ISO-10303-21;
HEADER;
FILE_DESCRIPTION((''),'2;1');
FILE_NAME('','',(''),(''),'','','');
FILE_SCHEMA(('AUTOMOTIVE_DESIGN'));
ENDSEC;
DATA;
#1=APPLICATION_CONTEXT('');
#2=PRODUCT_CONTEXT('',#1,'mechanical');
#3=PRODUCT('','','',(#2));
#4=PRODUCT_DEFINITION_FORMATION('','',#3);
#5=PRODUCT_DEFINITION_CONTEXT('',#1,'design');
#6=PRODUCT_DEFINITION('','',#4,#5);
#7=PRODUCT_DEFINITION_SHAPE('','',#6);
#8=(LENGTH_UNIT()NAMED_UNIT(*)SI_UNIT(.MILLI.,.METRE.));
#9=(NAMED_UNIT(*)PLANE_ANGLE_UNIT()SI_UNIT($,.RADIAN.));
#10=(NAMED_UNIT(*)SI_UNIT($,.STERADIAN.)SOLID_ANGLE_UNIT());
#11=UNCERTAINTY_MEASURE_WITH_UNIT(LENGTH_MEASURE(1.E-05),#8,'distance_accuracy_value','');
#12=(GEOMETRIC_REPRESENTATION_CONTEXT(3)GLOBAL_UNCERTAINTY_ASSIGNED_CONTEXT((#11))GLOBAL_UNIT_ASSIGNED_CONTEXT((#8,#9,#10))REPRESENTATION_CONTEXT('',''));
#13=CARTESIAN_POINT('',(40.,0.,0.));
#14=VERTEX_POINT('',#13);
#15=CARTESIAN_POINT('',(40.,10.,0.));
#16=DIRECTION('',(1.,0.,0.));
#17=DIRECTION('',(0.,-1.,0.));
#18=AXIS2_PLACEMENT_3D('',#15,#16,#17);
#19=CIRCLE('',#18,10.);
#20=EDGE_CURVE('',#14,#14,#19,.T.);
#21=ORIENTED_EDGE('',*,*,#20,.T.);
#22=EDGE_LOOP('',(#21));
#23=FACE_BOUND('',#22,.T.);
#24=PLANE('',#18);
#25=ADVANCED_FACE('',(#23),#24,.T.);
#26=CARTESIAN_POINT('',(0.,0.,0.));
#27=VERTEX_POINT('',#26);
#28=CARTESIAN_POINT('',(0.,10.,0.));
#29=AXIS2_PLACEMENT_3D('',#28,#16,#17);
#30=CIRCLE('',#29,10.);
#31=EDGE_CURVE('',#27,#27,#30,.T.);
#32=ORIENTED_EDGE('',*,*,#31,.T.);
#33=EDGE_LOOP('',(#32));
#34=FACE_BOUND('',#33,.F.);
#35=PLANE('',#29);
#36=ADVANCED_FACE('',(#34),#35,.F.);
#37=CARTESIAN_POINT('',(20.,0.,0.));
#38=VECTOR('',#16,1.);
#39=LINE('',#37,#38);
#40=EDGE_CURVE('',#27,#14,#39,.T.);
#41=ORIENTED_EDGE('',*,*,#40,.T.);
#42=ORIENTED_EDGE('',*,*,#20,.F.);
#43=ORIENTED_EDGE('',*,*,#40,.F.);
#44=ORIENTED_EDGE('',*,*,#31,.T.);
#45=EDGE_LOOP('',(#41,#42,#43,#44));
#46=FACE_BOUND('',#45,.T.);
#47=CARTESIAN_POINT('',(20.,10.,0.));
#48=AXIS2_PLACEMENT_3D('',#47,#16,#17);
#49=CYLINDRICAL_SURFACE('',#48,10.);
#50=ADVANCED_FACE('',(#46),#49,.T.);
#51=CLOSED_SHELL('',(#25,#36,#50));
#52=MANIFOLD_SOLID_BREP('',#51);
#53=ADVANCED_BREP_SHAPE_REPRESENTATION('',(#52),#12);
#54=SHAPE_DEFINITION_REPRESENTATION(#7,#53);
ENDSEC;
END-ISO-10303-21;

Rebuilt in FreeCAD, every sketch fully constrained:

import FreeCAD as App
import Part
import Sketcher

V = App.Vector
Q = App.Units.Quantity

doc = App.newDocument("Part")
body = doc.addObject("PartDesign::Body", "Body")

# Sketch on XY plane
sketch1 = body.newObject("Sketcher::SketchObject", "Sketch")
sketch1.AttachmentSupport = (doc.getObject("XY_Plane"), [""])
sketch1.MapMode = "FlatFace"
sketch1.addGeometry([
    Part.LineSegment(V(0, 10, 0), V(0, 0, 0)),
    Part.LineSegment(V(0, 0, 0), V(40, 0, 0)),
    Part.LineSegment(V(40, 0, 0), V(40, 10, 0)),
    Part.LineSegment(V(40, 10, 0), V(0, 10, 0)),
], False)
sketch1.addGeometry(Part.LineSegment(V(0, 10, 0), V(40, 10, 0)), True)  # axis
sketch1.addConstraint([
    Sketcher.Constraint("Coincident", 0, 2, 1, 1),
    Sketcher.Constraint("Coincident", 1, 2, 2, 1),
    Sketcher.Constraint("Coincident", 2, 2, 3, 1),
    Sketcher.Constraint("Coincident", 3, 2, 0, 1),
    Sketcher.Constraint("Vertical", 0),
    Sketcher.Constraint("Horizontal", 1),
    Sketcher.Constraint("Vertical", 2),
    Sketcher.Constraint("Horizontal", 3),
    Sketcher.Constraint("Horizontal", 4),
    Sketcher.Constraint("Coincident", 0, 2, -1, 1),
    Sketcher.Constraint("Coincident", 4, 1, 3, 2),
    Sketcher.Constraint("Vertical", 1, 2, 4, 2),
    Sketcher.Constraint("DistanceX", 1, 1, 1, 2, Q("40 mm")),
    Sketcher.Constraint("DistanceY", 0, 2, 0, 1, Q("10 mm")),
])
revolution = body.newObject("PartDesign::Revolution", "Revolution")
revolution.Profile = sketch1
revolution.ReferenceAxis = (sketch1, ["Axis0"])
revolution.Angle = 360

doc.recompute()
